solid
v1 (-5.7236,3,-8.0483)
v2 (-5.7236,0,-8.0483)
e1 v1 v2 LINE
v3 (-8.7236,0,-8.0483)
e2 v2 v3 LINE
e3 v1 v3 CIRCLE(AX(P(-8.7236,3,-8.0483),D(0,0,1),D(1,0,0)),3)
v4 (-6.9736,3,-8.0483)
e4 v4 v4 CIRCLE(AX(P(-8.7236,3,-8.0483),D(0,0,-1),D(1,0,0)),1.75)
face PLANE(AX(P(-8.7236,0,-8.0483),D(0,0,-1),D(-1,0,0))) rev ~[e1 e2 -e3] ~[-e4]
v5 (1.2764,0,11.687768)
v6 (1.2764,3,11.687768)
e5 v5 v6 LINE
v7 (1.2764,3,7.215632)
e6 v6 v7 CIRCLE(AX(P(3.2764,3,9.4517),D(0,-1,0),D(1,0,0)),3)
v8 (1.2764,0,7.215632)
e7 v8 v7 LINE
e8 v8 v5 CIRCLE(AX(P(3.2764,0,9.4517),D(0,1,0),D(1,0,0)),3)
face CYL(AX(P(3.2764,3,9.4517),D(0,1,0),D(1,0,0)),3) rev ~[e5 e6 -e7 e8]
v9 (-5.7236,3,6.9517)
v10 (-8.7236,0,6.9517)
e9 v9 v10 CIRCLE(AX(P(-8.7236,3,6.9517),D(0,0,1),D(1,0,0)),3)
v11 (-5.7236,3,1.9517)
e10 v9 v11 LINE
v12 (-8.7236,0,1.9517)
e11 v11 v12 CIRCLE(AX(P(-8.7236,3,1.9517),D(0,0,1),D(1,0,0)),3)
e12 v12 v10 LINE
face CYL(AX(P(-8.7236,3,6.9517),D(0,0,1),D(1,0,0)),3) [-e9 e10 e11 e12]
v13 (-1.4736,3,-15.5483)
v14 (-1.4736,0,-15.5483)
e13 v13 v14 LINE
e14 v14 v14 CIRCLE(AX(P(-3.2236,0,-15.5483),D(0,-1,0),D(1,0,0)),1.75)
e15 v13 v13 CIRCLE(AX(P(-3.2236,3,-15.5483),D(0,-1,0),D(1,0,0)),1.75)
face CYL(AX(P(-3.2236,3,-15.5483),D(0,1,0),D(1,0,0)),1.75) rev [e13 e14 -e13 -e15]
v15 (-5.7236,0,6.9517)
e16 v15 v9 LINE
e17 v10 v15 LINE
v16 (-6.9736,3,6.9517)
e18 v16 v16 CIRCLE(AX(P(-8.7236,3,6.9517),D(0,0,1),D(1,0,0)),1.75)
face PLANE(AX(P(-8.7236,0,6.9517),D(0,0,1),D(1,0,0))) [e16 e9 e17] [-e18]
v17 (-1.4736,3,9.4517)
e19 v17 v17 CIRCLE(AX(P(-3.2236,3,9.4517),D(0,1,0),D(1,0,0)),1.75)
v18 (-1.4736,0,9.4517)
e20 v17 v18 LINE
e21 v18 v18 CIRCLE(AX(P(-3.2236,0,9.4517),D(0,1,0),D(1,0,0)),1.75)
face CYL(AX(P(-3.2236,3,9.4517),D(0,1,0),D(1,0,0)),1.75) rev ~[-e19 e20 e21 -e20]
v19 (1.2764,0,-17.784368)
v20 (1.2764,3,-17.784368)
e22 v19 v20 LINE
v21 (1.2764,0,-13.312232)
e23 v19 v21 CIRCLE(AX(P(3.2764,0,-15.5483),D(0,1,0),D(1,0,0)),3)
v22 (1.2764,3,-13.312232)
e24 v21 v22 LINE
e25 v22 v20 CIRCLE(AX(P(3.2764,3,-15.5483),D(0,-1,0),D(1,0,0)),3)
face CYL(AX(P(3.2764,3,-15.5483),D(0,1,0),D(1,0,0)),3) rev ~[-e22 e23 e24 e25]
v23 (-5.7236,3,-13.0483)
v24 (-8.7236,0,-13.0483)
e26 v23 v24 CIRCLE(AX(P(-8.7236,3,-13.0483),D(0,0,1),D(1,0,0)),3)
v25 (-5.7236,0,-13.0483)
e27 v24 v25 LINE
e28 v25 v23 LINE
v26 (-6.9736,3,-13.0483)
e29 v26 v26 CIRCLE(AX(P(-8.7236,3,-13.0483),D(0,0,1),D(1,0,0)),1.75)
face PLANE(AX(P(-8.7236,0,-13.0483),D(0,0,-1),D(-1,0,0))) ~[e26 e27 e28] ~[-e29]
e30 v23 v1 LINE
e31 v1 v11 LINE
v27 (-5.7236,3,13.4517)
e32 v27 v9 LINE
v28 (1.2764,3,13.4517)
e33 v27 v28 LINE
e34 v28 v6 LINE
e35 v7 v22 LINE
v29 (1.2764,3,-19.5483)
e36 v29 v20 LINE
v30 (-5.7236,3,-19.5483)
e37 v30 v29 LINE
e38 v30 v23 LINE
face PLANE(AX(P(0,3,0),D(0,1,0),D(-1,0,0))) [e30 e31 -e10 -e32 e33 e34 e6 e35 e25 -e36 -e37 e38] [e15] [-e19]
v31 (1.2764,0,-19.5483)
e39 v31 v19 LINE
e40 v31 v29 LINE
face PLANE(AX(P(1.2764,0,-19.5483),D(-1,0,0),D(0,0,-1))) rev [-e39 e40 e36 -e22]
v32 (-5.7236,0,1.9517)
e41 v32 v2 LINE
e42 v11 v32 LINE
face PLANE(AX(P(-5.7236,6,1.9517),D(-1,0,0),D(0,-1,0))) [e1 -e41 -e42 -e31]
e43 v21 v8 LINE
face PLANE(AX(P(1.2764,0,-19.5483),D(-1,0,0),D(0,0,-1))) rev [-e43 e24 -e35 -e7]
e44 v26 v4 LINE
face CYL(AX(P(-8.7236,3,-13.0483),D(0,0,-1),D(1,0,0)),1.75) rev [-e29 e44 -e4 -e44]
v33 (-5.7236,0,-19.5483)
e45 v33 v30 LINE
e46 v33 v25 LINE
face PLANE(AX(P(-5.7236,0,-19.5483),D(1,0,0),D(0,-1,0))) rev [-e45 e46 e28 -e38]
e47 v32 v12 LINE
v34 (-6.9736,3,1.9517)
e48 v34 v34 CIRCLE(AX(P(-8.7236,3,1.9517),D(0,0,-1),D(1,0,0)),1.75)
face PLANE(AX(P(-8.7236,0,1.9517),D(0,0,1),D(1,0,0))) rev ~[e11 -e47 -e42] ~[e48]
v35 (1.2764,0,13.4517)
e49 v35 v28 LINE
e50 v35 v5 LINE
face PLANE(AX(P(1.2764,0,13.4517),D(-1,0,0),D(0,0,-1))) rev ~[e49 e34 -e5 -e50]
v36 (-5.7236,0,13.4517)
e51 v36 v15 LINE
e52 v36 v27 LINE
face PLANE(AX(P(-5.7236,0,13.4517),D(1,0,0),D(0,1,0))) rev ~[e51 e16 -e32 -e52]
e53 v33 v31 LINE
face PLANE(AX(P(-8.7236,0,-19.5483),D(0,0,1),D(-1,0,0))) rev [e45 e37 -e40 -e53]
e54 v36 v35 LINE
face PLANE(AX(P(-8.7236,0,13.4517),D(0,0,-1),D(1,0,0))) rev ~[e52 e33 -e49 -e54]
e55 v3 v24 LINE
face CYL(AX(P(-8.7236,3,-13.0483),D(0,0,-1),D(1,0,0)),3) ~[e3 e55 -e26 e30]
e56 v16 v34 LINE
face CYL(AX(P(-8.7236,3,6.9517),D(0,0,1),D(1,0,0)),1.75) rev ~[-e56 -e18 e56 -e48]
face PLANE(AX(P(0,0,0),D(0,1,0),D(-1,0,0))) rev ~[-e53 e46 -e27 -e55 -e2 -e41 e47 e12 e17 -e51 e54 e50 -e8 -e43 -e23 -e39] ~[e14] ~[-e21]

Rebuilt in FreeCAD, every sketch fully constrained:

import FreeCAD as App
import Part
import Sketcher
from FreeCAD import Vector
Q = App.Units.Quantity


def add_polygon(sketch, points):
    """Adds a closed chain of lines whose ends are joined by coincident constraints."""
    first, n = sketch.GeometryCount, len(points)
    for a, b in zip(points, points[1:] + points[:1]):
        sketch.addGeometry(Part.LineSegment(App.Vector(*a, 0), App.Vector(*b, 0)), False)
    for i in range(n):
        sketch.addConstraint(Sketcher.Constraint("Coincident", first + i, 2, first + (i + 1) % n, 1))

doc = App.newDocument("Part")
body = doc.addObject("PartDesign::Body", "Body")

sketch1 = doc.addObject("Sketcher::SketchObject", "Sketch")
body.addObject(sketch1)
sketch1.AttachmentSupport = (doc.XZ_Plane, [""])
sketch1.MapMode = "FlatFace"
add_polygon(sketch1, [(-9, -3), (-9, 13), (1, 13), (1, -3)])
sketch1.addConstraint([
    Sketcher.Constraint("Vertical", 0),
    Sketcher.Constraint("Horizontal", 1),
    Sketcher.Constraint("Vertical", 2),
    Sketcher.Constraint("Horizontal", 3),
    Sketcher.Constraint("DistanceX", 1, 1, 1, 2, Q("10 mm")),
    Sketcher.Constraint("DistanceY", 0, 1, 0, 2, Q("16.5 mm")),
    Sketcher.Constraint("DistanceX", 0, 2, -1, 1, Q("8.7236 mm")),
    Sketcher.Constraint("DistanceY", -1, 1, 0, 2, Q("13.4517 mm")),
])
pad1 = doc.addObject("PartDesign::Pad", "Pad")
body.addObject(pad1)
pad1.Profile = sketch1
pad1.Length = 3
pad1.Reversed = True

sketch2 = doc.addObject("Sketcher::SketchObject", "Sketch001")
body.addObject(sketch2)
sketch2.AttachmentSupport = (doc.XY_Plane, [""])
sketch2.MapMode = "FlatFace"
sketch2.AttachmentOffset = App.Placement(Vector(0, 0, 13.4517), App.Rotation())
add_polygon(sketch2, [(-12, 6), (-12, 0), (-6, 0), (-6, 6)])
sketch2.addConstraint([
    Sketcher.Constraint("Vertical", 0),
    Sketcher.Constraint("Horizontal", 1),
    Sketcher.Constraint("Vertical", 2),
    Sketcher.Constraint("Horizontal", 3),
    Sketcher.Constraint("PointOnObject", 0, 2, -1),
    Sketcher.Constraint("Equal", 3, 0),
    Sketcher.Constraint("DistanceX", 1, 1, 1, 2, Q("6 mm")),
    Sketcher.Constraint("DistanceX", 0, 2, -1, 1, Q("11.7236 mm")),
])
pocket1 = doc.addObject("PartDesign::Pocket", "Pocket")
body.addObject(pocket1)
pocket1.Profile = sketch2
pocket1.Length = 6.5

sketch3 = doc.addObject("Sketcher::SketchObject", "Sketch002")
body.addObject(sketch3)
sketch3.AttachmentSupport = (doc.XY_Plane, [""])
sketch3.MapMode = "FlatFace"
sketch3.AttachmentOffset = App.Placement(Vector(0, 0, 6.9517), App.Rotation())
sketch3.addGeometry(Part.Circle(Vector(-8.7, 3, 0), Vector(0, 0, 1), 3), False)
sketch3.addConstraint([
    Sketcher.Constraint("Diameter", 0, Q("6 mm")),
    Sketcher.Constraint("DistanceY", -1, 1, 0, 3, Q("3 mm")),
    Sketcher.Constraint("DistanceX", 0, 3, -1, 1, Q("8.7236 mm")),
])
pad2 = doc.addObject("PartDesign::Pad", "Pad001")
body.addObject(pad2)
pad2.Profile = sketch3
pad2.Length = 5
pad2.Reversed = True

sketch4 = doc.addObject("Sketcher::SketchObject", "Sketch003")
body.addObject(sketch4)
sketch4.AttachmentSupport = (doc.XY_Plane, [""])
sketch4.MapMode = "FlatFace"
sketch4.AttachmentOffset = App.Placement(Vector(0, 0, 6.9517), App.Rotation())
sketch4.addGeometry(Part.Circle(Vector(-8.7, 3, 0), Vector(0, 0, 1), 1.8), False)
sketch4.addConstraint([
    Sketcher.Constraint("Diameter", 0, Q("3.5 mm")),
    Sketcher.Constraint("DistanceY", -1, 1, 0, 3, Q("3 mm")),
    Sketcher.Constraint("DistanceX", 0, 3, -1, 1, Q("8.7236 mm")),
])
pocket2 = doc.addObject("PartDesign::Pocket", "Pocket001")
body.addObject(pocket2)
pocket2.Profile = sketch4
pocket2.Length = 10

sketch5 = doc.addObject("Sketcher::SketchObject", "Sketch004")
body.addObject(sketch5)
sketch5.AttachmentSupport = (doc.XZ_Plane, [""])
sketch5.MapMode = "FlatFace"
sketch5.AttachmentOffset = App.Placement(Vector(0, 0, -3), App.Rotation())
sketch5.addGeometry(Part.Circle(Vector(-3.2, 9.5, 0), Vector(0, 0, 1), 1.8), False)
sketch5.addConstraint([
    Sketcher.Constraint("Diameter", 0, Q("3.5 mm")),
    Sketcher.Constraint("DistanceX", 0, 3, -1, 1, Q("3.2236 mm")),
    Sketcher.Constraint("DistanceY", -1, 1, 0, 3, Q("9.4517 mm")),
])
pocket3 = doc.addObject("PartDesign::Pocket", "Pocket002")
body.addObject(pocket3)
pocket3.Profile = sketch5
pocket3.Type = "UpToFirst"
pocket3.Reversed = True
doc.recompute()

datumplane = doc.addObject("PartDesign::Plane", "DatumPlane")
body.addObject(datumplane)
datumplane.AttachmentSupport = (doc.XY_Plane, [""])
datumplane.MapMode = "FlatFace"
datumplane.AttachmentOffset = App.Placement(Vector(0, 0, -3.0483), App.Rotation())
mirrored = doc.addObject("PartDesign::Mirrored", "Mirrored")
body.addObject(mirrored)
mirrored.TransformMode = "Transform body"
mirrored.MirrorPlane = (datumplane, [""])
body.Tip = mirrored

sketch6 = doc.addObject("Sketcher::SketchObject", "Sketch005")
body.addObject(sketch6)
sketch6.AttachmentSupport = (doc.XZ_Plane, [""])
sketch6.MapMode = "FlatFace"
sketch6.AttachmentOffset = App.Placement(Vector(0, 0, -3), App.Rotation())
sketch6.addGeometry([
    Part.Circle(Vector(3.3, 9.5, 0), Vector(0, 0, 1), 3),
    Part.Circle(Vector(3.3, -15.5, 0), Vector(0, 0, 1), 3),
], False)
sketch6.addConstraint([
    Sketcher.Constraint("Equal", 0, 1),
    Sketcher.Constraint("Vertical", 0, 3, 1, 3),
    Sketcher.Constraint("Diameter", 0, Q("6 mm")),
    Sketcher.Constraint("DistanceY", 1, 3, 0, 3, Q("25 mm")),
    Sketcher.Constraint("DistanceX", -1, 1, 0, 3, Q("3.2764 mm")),
    Sketcher.Constraint("DistanceY", -1, 1, 0, 3, Q("9.4517 mm")),
])
pocket4 = doc.addObject("PartDesign::Pocket", "Pocket003")
body.addObject(pocket4)
pocket4.Profile = sketch6
pocket4.Type = "ThroughAll"
pocket4.Reversed = True

sketch7 = doc.addObject("Sketcher::SketchObject", "Sketch006")
body.addObject(sketch7)
sketch7.AttachmentSupport = (doc.XY_Plane, [""])
sketch7.MapMode = "FlatFace"
sketch7.AttachmentOffset = App.Placement(Vector(0, 0, 1.9517), App.Rotation())
add_polygon(sketch7, [(-6, 6), (-6, 0), (-12, 0), (-12, 6)])
sketch7.addConstraint([
    Sketcher.Constraint("Vertical", 0),
    Sketcher.Constraint("Horizontal", 1),
    Sketcher.Constraint("Vertical", 2),
    Sketcher.Constraint("Horizontal", 3),
    Sketcher.Constraint("PointOnObject", 0, 2, -1),
    Sketcher.Constraint("Equal", 3, 0),
    Sketcher.Constraint("DistanceX", 1, 2, 1, 1, Q("6 mm")),
    Sketcher.Constraint("DistanceX", 0, 2, -1, 1, Q("5.7236 mm")),
])
pocket5 = doc.addObject("PartDesign::Pocket", "Pocket004")
body.addObject(pocket5)
pocket5.Profile = sketch7
pocket5.Length = 10

doc.recompute()
